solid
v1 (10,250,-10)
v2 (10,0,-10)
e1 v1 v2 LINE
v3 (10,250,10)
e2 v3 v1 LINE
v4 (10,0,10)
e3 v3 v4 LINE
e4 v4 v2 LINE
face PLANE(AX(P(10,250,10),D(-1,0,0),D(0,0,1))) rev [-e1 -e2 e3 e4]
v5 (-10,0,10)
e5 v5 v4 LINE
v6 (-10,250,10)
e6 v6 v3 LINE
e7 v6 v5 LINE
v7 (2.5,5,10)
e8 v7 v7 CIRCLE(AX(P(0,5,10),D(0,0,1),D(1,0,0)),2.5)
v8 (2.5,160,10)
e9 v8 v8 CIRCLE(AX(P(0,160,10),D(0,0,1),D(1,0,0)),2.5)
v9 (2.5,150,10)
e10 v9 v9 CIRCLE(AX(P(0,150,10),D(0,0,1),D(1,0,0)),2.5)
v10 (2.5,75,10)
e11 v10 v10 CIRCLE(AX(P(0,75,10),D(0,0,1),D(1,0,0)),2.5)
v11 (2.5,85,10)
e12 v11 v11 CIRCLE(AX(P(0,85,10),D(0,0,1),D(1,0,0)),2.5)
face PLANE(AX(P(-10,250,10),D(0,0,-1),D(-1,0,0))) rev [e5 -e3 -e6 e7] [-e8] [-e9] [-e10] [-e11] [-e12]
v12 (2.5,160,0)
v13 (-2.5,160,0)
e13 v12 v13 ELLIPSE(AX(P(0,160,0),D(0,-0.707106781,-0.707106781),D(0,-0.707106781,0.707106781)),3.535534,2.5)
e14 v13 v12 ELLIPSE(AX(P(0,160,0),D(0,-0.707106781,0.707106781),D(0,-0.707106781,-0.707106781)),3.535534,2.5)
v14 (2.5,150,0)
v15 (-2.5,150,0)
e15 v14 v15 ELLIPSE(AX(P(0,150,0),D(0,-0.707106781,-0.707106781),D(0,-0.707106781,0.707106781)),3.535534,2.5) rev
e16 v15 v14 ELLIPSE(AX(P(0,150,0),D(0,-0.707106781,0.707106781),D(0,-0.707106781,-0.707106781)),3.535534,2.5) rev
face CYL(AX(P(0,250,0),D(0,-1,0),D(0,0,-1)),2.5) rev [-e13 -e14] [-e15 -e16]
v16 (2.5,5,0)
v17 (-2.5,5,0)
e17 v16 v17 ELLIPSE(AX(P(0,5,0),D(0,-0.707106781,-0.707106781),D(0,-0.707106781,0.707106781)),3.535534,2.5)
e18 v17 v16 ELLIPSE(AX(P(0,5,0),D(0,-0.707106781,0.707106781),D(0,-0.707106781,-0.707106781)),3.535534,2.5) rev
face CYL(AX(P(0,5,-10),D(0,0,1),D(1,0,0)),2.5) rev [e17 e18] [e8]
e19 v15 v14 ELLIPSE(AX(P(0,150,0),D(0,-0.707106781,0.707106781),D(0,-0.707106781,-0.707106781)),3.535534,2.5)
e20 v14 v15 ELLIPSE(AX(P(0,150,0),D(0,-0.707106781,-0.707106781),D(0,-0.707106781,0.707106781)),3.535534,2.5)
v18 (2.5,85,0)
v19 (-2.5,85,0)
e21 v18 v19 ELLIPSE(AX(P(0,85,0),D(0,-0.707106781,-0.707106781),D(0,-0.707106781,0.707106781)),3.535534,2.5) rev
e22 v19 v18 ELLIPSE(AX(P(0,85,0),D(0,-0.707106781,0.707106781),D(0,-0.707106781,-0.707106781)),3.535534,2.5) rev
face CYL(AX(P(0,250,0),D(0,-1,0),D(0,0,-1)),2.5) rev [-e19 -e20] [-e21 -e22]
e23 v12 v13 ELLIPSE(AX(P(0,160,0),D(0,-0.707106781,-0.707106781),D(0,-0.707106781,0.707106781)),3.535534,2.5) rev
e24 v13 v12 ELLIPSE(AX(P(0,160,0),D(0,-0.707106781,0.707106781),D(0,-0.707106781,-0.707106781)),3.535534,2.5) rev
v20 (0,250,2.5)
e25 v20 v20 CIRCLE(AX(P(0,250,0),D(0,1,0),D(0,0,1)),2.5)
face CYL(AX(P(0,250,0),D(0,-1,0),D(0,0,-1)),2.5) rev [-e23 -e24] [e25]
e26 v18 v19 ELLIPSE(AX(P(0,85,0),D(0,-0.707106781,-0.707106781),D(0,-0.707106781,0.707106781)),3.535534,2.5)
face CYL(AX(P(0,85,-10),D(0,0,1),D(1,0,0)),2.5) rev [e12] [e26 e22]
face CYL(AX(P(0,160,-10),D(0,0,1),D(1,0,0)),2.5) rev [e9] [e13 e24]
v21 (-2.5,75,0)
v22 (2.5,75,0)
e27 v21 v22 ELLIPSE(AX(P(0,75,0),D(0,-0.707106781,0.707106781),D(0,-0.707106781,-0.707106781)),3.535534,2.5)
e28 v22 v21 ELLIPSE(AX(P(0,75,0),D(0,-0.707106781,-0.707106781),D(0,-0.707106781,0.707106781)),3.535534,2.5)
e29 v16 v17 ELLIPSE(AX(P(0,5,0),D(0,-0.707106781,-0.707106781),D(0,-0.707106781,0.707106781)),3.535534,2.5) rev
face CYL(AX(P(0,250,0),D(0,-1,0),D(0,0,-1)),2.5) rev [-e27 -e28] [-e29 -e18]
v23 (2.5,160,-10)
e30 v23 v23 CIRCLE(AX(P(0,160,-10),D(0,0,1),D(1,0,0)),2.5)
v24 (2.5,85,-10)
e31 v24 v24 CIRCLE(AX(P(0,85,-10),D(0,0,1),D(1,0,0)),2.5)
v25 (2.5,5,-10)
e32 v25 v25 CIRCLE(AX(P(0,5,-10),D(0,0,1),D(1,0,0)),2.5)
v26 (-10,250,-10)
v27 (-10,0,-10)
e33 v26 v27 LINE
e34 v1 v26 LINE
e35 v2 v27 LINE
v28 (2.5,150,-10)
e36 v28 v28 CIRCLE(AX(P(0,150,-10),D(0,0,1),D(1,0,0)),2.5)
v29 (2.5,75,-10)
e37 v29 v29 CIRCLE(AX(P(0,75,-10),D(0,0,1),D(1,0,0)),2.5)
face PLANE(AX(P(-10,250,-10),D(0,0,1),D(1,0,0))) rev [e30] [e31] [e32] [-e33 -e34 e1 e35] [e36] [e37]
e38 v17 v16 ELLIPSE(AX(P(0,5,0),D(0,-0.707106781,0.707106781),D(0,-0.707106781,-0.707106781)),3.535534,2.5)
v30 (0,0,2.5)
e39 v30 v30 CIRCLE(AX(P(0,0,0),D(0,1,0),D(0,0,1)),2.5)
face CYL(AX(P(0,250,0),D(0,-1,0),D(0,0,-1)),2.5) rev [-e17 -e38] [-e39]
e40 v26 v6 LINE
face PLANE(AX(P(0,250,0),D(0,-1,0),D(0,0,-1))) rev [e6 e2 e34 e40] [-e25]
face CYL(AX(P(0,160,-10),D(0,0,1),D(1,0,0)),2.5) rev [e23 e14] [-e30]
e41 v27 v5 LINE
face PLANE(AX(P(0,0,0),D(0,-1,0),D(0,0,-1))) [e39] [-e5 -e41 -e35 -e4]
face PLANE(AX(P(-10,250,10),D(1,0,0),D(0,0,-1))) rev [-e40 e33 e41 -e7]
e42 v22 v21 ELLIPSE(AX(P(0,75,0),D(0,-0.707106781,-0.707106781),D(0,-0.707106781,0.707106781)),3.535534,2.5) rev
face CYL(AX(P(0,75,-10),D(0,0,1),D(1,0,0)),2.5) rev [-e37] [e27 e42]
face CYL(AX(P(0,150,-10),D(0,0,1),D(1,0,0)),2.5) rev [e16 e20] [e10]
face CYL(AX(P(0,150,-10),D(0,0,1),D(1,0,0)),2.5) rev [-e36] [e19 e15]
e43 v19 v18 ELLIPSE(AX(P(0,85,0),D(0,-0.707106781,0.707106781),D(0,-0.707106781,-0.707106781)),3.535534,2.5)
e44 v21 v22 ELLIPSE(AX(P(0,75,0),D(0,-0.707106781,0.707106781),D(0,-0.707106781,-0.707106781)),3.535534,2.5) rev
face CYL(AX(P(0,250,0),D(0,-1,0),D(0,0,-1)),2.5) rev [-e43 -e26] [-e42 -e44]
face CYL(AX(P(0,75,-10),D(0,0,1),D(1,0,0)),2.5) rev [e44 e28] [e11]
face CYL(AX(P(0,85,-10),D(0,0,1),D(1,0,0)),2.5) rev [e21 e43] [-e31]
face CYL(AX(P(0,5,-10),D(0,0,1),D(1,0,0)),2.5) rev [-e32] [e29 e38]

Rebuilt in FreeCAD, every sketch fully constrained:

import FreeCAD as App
import Part
import Sketcher

doc = App.newDocument("Part")
body = doc.addObject("PartDesign::Body", "Body")

sketch1 = doc.addObject("Sketcher::SketchObject", "Sketch")
body.addObject(sketch1)
sketch1.AttachmentSupport = (doc.XZ_Plane, [""])
sketch1.MapMode = "FlatFace"
sketch1.addGeometry([
    Part.LineSegment(App.Vector(-10, -10, 0), App.Vector(-10, 10, 0)),
    Part.LineSegment(App.Vector(-10, 10, 0), App.Vector(10, 10, 0)),
    Part.LineSegment(App.Vector(10, 10, 0), App.Vector(10, -10, 0)),
    Part.LineSegment(App.Vector(10, -10, 0), App.Vector(-10, -10, 0)),
    Part.Circle(App.Vector(0, 0, 0), App.Vector(0, 0, 1), 2.5),
], False)
sketch1.addConstraint([
    Sketcher.Constraint("Coincident", 0, 2, 1, 1),
    Sketcher.Constraint("Coincident", 1, 2, 2, 1),
    Sketcher.Constraint("Coincident", 2, 2, 3, 1),
    Sketcher.Constraint("Coincident", 3, 2, 0, 1),
    Sketcher.Constraint("Vertical", 0),
    Sketcher.Constraint("Horizontal", 1),
    Sketcher.Constraint("Vertical", 2),
    Sketcher.Constraint("Horizontal", 3),
    Sketcher.Constraint("Coincident", 4, 3, -1, 1),
    Sketcher.Constraint("Symmetric", 0, 2, 2, 2, -1, 1),
    Sketcher.Constraint("Equal", 3, 0),
    Sketcher.Constraint("Diameter", 4, 5.0),
    Sketcher.Constraint("DistanceX", 1, 1, 1, 2, 20.0),
])
pad1 = doc.addObject("PartDesign::Pad", "Pad")
body.addObject(pad1)
pad1.Profile = sketch1
pad1.Length = 250
pad1.Reversed = True

sketch2 = doc.addObject("Sketcher::SketchObject", "Sketch001")
body.addObject(sketch2)
sketch2.AttachmentSupport = (doc.XY_Plane, [""])
sketch2.MapMode = "FlatFace"
sketch2.AttachmentOffset = App.Placement(App.Vector(0, 0, 10), App.Rotation())
sketch2.addGeometry(Part.Circle(App.Vector(0, 5, 0), App.Vector(0, 0, 1), 2.5), False)
sketch2.addConstraint([
    Sketcher.Constraint("PointOnObject", 0, 3, -2),
    Sketcher.Constraint("Diameter", 0, 5.0),
    Sketcher.Constraint("DistanceY", -1, 1, 0, 3, 5.0),
])
pocket1 = doc.addObject("PartDesign::Pocket", "Pocket")
body.addObject(pocket1)
pocket1.Profile = sketch2
pocket1.Type = "ThroughAll"

sketch3 = doc.addObject("Sketcher::SketchObject", "Sketch002")
body.addObject(sketch3)
sketch3.AttachmentSupport = (doc.XY_Plane, [""])
sketch3.MapMode = "FlatFace"
sketch3.AttachmentOffset = App.Placement(App.Vector(0, 0, 10), App.Rotation())
sketch3.addGeometry([
    Part.Circle(App.Vector(0, 75, 0), App.Vector(0, 0, 1), 2.5),
    Part.Circle(App.Vector(0, 85, 0), App.Vector(0, 0, 1), 2.5),
    Part.Circle(App.Vector(0, 150, 0), App.Vector(0, 0, 1), 2.5),
    Part.Circle(App.Vector(0, 160, 0), App.Vector(0, 0, 1), 2.5),
], False)
sketch3.addConstraint([
    Sketcher.Constraint("Equal", 0, 1),
    Sketcher.Constraint("Equal", 1, 2),
    Sketcher.Constraint("Equal", 2, 3),
    Sketcher.Constraint("PointOnObject", 0, 3, -2),
    Sketcher.Constraint("PointOnObject", 1, 3, -2),
    Sketcher.Constraint("PointOnObject", 2, 3, -2),
    Sketcher.Constraint("PointOnObject", 3, 3, -2),
    Sketcher.Constraint("Diameter", 0, 5.0),
    Sketcher.Constraint("DistanceY", -1, 1, 0, 3, 75.0),
    Sketcher.Constraint("DistanceY", -1, 1, 1, 3, 85.0),
    Sketcher.Constraint("DistanceY", -1, 1, 2, 3, 150.0),
    Sketcher.Constraint("DistanceY", -1, 1, 3, 3, 160.0),
])
pocket2 = doc.addObject("PartDesign::Pocket", "Pocket001")
body.addObject(pocket2)
pocket2.Profile = sketch3
pocket2.Type = "ThroughAll"

doc.recompute()
